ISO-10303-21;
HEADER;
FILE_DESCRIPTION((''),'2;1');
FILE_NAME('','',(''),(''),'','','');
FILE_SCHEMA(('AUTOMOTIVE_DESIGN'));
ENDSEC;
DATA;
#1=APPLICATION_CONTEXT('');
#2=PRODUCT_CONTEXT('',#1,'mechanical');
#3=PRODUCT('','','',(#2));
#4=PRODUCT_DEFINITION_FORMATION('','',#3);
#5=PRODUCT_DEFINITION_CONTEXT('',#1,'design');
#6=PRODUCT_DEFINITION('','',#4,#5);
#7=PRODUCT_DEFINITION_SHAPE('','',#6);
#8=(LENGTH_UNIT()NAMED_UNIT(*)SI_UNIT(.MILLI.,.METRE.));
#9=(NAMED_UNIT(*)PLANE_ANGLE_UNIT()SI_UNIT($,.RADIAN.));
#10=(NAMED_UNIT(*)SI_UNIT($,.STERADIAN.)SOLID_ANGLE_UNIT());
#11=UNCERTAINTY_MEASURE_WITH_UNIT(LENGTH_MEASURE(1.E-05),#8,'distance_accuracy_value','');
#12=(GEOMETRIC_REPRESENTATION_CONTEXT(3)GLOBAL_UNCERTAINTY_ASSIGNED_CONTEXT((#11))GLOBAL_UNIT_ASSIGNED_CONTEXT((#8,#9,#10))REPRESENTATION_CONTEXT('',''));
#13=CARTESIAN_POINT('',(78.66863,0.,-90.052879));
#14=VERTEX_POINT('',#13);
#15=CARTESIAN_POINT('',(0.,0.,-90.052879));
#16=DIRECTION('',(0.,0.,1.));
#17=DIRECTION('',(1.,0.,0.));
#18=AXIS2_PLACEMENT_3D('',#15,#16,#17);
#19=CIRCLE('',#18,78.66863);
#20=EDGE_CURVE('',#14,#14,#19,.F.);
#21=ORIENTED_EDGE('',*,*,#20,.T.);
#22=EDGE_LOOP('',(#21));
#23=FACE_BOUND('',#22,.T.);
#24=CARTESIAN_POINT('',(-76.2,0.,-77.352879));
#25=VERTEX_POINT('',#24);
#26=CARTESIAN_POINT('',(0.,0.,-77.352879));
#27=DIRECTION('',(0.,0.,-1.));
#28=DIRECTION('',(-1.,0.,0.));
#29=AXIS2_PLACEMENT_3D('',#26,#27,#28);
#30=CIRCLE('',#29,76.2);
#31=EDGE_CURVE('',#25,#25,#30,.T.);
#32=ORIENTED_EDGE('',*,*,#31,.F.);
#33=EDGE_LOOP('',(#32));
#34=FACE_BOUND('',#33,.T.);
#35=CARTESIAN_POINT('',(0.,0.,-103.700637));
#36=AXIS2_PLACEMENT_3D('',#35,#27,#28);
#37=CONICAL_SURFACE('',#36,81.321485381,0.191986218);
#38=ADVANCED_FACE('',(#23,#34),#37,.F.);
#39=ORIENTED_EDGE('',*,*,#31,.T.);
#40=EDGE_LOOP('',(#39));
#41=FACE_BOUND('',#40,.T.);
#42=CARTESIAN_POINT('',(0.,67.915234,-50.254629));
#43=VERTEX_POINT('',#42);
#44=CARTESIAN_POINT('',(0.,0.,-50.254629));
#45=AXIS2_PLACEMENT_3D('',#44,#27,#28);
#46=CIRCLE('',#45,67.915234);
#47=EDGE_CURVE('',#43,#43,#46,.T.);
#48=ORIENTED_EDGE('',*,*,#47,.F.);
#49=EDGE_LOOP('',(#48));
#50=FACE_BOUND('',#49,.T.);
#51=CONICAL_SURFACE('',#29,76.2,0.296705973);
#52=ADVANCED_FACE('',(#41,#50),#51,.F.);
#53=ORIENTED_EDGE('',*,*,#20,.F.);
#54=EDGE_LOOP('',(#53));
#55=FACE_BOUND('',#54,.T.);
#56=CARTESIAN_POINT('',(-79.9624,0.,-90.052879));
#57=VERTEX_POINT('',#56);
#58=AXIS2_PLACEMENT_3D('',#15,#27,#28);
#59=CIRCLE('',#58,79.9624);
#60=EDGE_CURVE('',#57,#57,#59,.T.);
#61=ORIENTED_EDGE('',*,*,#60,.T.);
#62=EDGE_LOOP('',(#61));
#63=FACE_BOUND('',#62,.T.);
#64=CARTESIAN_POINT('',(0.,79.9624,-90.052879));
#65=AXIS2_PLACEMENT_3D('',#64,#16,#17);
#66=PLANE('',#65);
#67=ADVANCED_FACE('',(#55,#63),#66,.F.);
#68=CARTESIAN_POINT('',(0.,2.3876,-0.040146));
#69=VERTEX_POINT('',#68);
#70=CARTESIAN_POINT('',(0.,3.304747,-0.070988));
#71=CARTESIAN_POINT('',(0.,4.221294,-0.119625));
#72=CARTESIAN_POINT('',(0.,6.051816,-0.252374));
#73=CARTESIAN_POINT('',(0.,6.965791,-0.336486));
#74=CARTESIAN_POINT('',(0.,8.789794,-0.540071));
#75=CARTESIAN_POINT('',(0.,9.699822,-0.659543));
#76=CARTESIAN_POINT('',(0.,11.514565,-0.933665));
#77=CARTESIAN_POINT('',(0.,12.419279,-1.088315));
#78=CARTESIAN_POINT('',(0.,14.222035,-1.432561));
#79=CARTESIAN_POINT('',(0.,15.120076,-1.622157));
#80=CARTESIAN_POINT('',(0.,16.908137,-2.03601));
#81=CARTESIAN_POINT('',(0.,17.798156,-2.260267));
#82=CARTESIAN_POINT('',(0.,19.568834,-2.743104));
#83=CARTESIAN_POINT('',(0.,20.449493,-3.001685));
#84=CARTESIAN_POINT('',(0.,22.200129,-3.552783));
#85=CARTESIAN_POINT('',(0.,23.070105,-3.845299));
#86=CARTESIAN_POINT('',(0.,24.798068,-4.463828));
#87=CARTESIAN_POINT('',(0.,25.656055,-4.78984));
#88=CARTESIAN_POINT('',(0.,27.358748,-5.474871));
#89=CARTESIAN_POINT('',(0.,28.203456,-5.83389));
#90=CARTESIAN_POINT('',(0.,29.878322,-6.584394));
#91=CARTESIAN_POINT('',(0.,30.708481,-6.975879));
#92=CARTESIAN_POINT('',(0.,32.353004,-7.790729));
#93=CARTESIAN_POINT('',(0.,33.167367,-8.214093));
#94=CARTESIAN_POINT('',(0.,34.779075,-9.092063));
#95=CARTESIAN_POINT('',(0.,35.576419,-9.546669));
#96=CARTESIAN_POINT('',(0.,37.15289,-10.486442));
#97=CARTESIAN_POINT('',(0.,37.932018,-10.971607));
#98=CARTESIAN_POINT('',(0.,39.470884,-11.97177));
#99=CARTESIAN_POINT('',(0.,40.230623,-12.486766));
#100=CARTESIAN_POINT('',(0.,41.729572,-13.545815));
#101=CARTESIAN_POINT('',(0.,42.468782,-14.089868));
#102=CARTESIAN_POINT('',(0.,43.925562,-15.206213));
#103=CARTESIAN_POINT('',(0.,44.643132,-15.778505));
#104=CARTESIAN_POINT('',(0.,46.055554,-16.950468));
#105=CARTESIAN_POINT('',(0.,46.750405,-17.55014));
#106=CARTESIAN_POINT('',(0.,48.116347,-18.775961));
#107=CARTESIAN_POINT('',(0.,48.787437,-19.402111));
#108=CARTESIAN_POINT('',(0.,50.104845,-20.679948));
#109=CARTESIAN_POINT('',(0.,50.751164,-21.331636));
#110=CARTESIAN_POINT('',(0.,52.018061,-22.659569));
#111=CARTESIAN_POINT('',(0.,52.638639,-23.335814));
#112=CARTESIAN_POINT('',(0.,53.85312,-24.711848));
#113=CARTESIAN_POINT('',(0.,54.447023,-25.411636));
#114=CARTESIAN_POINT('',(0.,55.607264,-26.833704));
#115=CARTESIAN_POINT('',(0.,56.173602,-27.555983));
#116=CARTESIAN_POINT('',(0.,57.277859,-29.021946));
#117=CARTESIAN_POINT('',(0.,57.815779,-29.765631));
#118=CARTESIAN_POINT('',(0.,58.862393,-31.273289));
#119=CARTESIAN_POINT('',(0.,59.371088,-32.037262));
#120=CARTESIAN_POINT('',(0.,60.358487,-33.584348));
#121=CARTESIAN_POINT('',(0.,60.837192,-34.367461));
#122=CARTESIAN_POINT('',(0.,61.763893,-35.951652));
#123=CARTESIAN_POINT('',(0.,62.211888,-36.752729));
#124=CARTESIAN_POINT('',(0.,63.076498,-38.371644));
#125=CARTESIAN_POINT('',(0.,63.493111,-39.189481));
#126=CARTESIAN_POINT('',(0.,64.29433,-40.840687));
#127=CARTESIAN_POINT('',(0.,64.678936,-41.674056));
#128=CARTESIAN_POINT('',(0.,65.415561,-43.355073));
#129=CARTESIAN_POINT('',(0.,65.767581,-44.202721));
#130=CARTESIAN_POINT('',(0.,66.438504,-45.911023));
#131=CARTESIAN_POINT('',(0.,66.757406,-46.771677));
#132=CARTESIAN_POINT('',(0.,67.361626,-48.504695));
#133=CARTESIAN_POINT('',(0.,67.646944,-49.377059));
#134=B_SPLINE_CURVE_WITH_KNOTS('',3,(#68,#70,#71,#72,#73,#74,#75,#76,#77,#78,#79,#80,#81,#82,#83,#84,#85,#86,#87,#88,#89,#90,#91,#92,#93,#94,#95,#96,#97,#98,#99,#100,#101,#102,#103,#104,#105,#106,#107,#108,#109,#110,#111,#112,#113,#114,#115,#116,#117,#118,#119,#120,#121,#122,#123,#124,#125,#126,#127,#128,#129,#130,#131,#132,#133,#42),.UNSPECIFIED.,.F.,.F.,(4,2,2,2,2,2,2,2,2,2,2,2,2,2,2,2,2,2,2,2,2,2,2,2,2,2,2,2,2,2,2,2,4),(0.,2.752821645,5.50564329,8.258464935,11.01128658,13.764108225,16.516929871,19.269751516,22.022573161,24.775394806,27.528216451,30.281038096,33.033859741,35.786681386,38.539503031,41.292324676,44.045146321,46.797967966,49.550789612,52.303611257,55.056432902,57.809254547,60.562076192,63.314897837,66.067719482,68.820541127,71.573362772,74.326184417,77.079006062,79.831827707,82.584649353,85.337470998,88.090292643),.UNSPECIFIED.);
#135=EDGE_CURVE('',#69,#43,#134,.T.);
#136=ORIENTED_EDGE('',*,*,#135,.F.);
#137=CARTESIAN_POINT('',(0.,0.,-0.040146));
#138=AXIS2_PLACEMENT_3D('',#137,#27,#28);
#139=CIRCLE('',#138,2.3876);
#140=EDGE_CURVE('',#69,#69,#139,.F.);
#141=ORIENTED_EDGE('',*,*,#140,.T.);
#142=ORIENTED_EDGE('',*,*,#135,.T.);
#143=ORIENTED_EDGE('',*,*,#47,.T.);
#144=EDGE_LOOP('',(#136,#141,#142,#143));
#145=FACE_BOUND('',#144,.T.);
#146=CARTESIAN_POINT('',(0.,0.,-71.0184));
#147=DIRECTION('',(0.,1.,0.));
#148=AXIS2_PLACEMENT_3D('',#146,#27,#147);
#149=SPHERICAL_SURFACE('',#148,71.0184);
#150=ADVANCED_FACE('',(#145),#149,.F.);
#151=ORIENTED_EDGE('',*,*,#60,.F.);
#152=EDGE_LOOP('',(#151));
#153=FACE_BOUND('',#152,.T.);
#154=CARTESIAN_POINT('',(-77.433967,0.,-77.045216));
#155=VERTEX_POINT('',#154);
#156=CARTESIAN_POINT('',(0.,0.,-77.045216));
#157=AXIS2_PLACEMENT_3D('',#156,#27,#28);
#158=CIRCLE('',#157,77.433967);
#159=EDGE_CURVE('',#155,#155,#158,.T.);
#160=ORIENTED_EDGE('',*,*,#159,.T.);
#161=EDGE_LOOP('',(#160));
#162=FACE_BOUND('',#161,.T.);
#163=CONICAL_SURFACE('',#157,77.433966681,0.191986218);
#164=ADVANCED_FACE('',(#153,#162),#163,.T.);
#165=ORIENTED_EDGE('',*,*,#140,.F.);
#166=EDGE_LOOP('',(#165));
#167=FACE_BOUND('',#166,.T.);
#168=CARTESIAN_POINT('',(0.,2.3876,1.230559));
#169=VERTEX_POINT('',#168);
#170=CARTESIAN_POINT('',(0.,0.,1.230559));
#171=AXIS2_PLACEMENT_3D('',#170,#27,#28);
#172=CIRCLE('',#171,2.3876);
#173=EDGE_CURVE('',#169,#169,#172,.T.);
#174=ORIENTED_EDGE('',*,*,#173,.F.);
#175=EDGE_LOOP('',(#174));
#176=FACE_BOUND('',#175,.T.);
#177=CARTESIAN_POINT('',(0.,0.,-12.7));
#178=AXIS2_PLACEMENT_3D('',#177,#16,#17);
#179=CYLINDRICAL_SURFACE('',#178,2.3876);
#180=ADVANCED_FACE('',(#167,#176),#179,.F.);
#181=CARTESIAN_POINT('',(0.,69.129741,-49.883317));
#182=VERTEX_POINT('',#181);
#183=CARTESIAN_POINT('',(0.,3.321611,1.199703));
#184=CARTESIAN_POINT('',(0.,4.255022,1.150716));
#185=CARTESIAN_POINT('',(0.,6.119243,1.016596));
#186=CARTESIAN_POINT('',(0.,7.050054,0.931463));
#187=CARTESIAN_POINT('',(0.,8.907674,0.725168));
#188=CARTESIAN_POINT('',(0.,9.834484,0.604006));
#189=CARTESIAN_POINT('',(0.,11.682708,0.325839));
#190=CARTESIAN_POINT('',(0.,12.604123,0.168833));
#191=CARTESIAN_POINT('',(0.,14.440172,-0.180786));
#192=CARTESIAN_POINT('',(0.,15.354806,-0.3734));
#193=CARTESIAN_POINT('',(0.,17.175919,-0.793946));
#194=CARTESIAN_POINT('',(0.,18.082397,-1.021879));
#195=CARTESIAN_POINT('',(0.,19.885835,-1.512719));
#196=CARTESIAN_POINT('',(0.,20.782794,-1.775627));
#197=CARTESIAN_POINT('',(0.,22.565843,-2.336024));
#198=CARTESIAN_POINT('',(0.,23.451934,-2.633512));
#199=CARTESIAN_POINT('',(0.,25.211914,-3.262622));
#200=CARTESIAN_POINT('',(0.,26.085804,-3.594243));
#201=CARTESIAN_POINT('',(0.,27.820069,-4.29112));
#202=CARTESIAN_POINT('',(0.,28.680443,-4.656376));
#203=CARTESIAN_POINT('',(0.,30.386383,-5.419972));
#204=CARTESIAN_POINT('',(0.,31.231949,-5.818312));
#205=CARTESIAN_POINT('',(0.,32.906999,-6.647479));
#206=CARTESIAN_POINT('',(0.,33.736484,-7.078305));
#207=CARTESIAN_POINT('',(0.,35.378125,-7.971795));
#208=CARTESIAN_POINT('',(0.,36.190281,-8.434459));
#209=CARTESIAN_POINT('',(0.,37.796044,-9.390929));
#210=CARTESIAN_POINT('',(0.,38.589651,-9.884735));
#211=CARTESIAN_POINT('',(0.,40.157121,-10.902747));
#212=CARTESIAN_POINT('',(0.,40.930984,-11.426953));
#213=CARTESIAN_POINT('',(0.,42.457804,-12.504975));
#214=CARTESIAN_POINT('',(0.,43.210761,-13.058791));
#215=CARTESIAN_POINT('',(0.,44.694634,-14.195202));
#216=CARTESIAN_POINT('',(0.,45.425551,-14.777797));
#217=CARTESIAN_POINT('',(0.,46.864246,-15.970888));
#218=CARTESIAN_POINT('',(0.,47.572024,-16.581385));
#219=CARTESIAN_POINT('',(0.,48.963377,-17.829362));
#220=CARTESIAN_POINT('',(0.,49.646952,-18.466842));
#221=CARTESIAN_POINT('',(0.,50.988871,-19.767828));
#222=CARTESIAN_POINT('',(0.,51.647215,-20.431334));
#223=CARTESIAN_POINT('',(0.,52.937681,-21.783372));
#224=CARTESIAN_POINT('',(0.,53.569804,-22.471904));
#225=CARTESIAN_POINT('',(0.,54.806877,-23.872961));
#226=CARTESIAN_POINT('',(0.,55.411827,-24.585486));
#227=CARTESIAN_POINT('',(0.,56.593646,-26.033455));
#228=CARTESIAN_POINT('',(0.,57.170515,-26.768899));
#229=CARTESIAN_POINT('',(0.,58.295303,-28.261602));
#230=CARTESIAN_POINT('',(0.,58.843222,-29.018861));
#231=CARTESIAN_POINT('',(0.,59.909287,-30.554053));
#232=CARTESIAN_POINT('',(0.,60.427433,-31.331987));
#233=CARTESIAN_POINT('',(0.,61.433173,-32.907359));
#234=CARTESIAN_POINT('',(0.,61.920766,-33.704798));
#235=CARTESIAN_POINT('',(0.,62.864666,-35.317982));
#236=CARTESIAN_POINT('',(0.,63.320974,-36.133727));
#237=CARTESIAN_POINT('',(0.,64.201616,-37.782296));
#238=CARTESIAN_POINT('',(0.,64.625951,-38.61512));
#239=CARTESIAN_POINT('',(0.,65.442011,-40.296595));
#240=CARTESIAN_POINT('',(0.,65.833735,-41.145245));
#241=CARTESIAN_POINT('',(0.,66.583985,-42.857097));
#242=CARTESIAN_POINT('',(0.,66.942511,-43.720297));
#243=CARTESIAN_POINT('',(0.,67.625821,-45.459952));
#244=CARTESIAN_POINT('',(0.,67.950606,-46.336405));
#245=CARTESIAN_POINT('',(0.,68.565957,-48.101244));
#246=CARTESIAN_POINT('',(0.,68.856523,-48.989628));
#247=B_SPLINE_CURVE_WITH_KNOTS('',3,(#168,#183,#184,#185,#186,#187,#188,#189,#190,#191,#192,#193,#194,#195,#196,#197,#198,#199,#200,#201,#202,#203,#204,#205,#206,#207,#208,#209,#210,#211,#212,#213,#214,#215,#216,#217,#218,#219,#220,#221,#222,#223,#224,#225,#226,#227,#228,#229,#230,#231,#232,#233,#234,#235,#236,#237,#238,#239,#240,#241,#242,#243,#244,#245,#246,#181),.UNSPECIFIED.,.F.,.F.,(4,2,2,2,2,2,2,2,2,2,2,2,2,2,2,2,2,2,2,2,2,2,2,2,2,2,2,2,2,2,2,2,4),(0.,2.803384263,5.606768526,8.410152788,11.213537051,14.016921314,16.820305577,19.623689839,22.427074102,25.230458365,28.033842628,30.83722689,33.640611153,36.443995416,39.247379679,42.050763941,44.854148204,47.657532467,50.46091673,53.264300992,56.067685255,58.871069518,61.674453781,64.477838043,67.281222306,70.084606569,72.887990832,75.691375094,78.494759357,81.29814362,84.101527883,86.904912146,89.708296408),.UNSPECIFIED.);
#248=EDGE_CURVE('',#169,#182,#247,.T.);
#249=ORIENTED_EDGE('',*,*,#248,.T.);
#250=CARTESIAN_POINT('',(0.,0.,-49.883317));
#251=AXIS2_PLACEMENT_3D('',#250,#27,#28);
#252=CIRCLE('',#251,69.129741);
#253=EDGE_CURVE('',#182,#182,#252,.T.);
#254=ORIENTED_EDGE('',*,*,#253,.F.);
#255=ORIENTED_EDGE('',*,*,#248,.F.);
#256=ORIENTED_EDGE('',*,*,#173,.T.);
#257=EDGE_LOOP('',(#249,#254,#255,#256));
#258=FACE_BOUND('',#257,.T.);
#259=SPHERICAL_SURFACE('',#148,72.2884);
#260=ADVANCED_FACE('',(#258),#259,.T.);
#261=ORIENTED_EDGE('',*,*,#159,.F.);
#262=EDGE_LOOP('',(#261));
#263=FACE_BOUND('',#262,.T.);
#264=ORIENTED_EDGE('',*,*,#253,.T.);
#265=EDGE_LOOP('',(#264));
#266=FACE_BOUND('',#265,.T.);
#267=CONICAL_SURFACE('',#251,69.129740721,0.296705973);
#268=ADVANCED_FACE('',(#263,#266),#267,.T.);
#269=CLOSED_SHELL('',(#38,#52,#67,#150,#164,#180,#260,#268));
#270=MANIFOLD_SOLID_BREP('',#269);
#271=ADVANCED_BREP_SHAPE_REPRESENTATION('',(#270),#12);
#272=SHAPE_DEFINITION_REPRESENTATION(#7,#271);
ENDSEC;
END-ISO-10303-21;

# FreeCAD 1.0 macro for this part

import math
import FreeCAD as App
import Part
import Sketcher
from FreeCAD import Vector
Q = App.Units.Quantity

doc = App.newDocument("Part")
body = doc.addObject("PartDesign::Body", "Body")

sketch1 = body.newObject("Sketcher::SketchObject", "Sketch")
sketch1.AttachmentSupport = (doc.getObject("YZ_Plane"), [""])
sketch1.MapMode = "FlatFace"
sketch1.addGeometry([
    Part.ArcOfCircle(Part.Circle(Vector(0, -71, 0), Vector(0, 0, 1), 71), math.radians(17), math.radians(90)),
    Part.LineSegment(Vector(67.9, -50.3, 0), Vector(76.2, -77.4, 0)),
    Part.LineSegment(Vector(76.2, -77.4, 0), Vector(78.7, -90.1, 0)),
    Part.LineSegment(Vector(78.7, -90.1, 0), Vector(81.3, -103.7, 0)),
    Part.ArcOfCircle(Part.Circle(Vector(87.6, -102.5, 0), Vector(0, 0, 1), 6.4), math.radians(-169), math.radians(-90)),
    Part.LineSegment(Vector(87.6, -108.8, 0), Vector(114.3, -108.8, 0)),
    Part.LineSegment(Vector(114.3, -108.8, 0), Vector(114.3, -106.3, 0)),
    Part.LineSegment(Vector(114.3, -106.3, 0), Vector(87.6, -106.3, 0)),
    Part.ArcOfCircle(Part.Circle(Vector(87.6, -102.5, 0), Vector(0, 0, 1), 3.8), math.radians(-169), math.radians(-90)),
    Part.LineSegment(Vector(83.8, -103.2, 0), Vector(81.2, -89.6, 0)),
    Part.LineSegment(Vector(81.2, -89.6, 0), Vector(78.7, -76.7, 0)),
    Part.LineSegment(Vector(78.7, -76.7, 0), Vector(70.3, -49.5, 0)),
    Part.ArcOfCircle(Part.Circle(Vector(0, -71, 0), Vector(0, 0, 1), 73.6), math.radians(17), math.radians(90)),
    Part.LineSegment(Vector(0, 2.5, 0), Vector(0, 0, 0)),
], False)
sketch1.addConstraint([
    Sketcher.Constraint("Tangent", 0, 1, 1, 1),
    Sketcher.Constraint("Coincident", 1, 2, 2, 1),
    Sketcher.Constraint("Coincident", 2, 2, 3, 1),
    Sketcher.Constraint("Tangent", 3, 2, 4, 1),
    Sketcher.Constraint("Tangent", 4, 2, 5, 1),
    Sketcher.Constraint("Coincident", 5, 2, 6, 1),
    Sketcher.Constraint("Coincident", 6, 2, 7, 1),
    Sketcher.Constraint("Tangent", 7, 2, 8, 2),
    Sketcher.Constraint("Tangent", 8, 1, 9, 1),
    Sketcher.Constraint("Coincident", 9, 2, 10, 1),
    Sketcher.Constraint("Coincident", 10, 2, 11, 1),
    Sketcher.Constraint("Tangent", 11, 2, 12, 1),
    Sketcher.Constraint("Coincident", 12, 2, 13, 1),
    Sketcher.Constraint("Coincident", 13, 2, 0, 2),
    Sketcher.Constraint("Horizontal", 5),
    Sketcher.Constraint("Vertical", 6),
    Sketcher.Constraint("Horizontal", 7),
    Sketcher.Constraint("Vertical", 13),
    Sketcher.Constraint("Coincident", 13, 2, -1, 1),
    Sketcher.Constraint("Coincident", 8, 3, 4, 3),
    Sketcher.Constraint("Coincident", 12, 3, 0, 3),
    Sketcher.Constraint("PointOnObject", 0, 3, -2),
    Sketcher.Constraint("Parallel", 2, 3),
    Sketcher.Constraint("Parallel", 3, 9),
    Sketcher.Constraint("Parallel", 9, 10),
    Sketcher.Constraint("Parallel", 1, 11),
    Sketcher.Constraint("Equal", 6, 13),
    Sketcher.Constraint("Equal", 3, 9),
    Sketcher.Constraint("Radius", 4, Q("0.25 in")),
    Sketcher.Constraint("Radius", 8, Q("0.15 in")),
    Sketcher.Constraint("DistanceX", -1, 1, 1, 2, Q("3 in")),
    Sketcher.Constraint("Angle", 1, Q("-73 deg")),
    Sketcher.Constraint("Angle", 2, Q("-79 deg")),
    Sketcher.Constraint("Radius", 0, Q("2.796 in")),
    Sketcher.Constraint("DistanceX", -1, 1, 5, 2, Q("4.5 in")),
    Sketcher.Constraint("DistanceY", 2, 2, 1, 2, Q("0.5 in")),
    Sketcher.Constraint("DistanceY", 4, 3, -1, 1, Q("4.035 in")),
])
revolution = body.newObject("PartDesign::Revolution", "Revolution")
revolution.Profile = sketch1
revolution.ReferenceAxis = (sketch1, ["V_Axis"])
revolution.Angle = 360

sketch2 = body.newObject("Sketcher::SketchObject", "Sketch001")
sketch2.AttachmentSupport = (doc.getObject("YZ_Plane"), [""])
sketch2.MapMode = "FlatFace"
sketch2.addGeometry([
    Part.LineSegment(Vector(0, 24, 0), Vector(0, 1, 0)),
    Part.ArcOfCircle(Part.Circle(Vector(0, -71, 0), Vector(0, 0, 1), 72), math.radians(17), math.radians(90)),
    Part.LineSegment(Vector(69, -50, 0), Vector(77, -77, 0)),
    Part.LineSegment(Vector(77, -77, 0), Vector(80, -90, 0)),
    Part.LineSegment(Vector(80, -90, 0), Vector(70, -90, 0)),
    Part.LineSegment(Vector(70, -90, 0), Vector(70, -117, 0)),
    Part.LineSegment(Vector(70, -117, 0), Vector(127, -117, 0)),
    Part.LineSegment(Vector(127, -117, 0), Vector(127, 24, 0)),
    Part.LineSegment(Vector(127, 24, 0), Vector(0, 24, 0)),
], False)
sketch2.addConstraint([
    Sketcher.Constraint("Coincident", 0, 2, 1, 2),
    Sketcher.Constraint("Tangent", 1, 1, 2, 1),
    Sketcher.Constraint("Coincident", 2, 2, 3, 1),
    Sketcher.Constraint("Coincident", 3, 2, 4, 1),
    Sketcher.Constraint("Coincident", 4, 2, 5, 1),
    Sketcher.Constraint("Coincident", 5, 2, 6, 1),
    Sketcher.Constraint("Coincident", 6, 2, 7, 1),
    Sketcher.Constraint("Coincident", 7, 2, 8, 1),
    Sketcher.Constraint("Coincident", 8, 2, 0, 1),
    Sketcher.Constraint("Vertical", 0),
    Sketcher.Constraint("Horizontal", 4),
    Sketcher.Constraint("Vertical", 5),
    Sketcher.Constraint("Horizontal", 6),
    Sketcher.Constraint("Vertical", 7),
    Sketcher.Constraint("Horizontal", 8),
    Sketcher.Constraint("PointOnObject", 1, 3, -2),
    Sketcher.Constraint("PointOnObject", 0, 2, -2),
    Sketcher.Constraint("Angle", 2, Q("-73 deg")),
    Sketcher.Constraint("Angle", 3, Q("-79 deg")),
    Sketcher.Constraint("Radius", 1, Q("2.846 in")),
    Sketcher.Constraint("DistanceY", -1, 1, 0, 2, Q("0.05 in")),
    Sketcher.Constraint("DistanceX", 6, 1, 6, 2, Q("57.216911 mm")),
    Sketcher.Constraint("DistanceY", 5, 2, 5, 1, Q("26.847378 mm")),
    Sketcher.Constraint("DistanceX", -1, 1, 3, 2, Q("79.9624 mm")),
    Sketcher.Constraint("DistanceY", 2, 2, 1, 1, Q("27.161899 mm")),
    Sketcher.Constraint("DistanceX", 4, 2, 4, 1, Q("9.961466 mm")),
    Sketcher.Constraint("DistanceY", 0, 2, 0, 1, Q("22.616406 mm")),
])
groove = body.newObject("PartDesign::Groove", "Groove")
groove.Profile = sketch2
groove.ReferenceAxis = (sketch2, ["V_Axis"])
groove.Angle = 360

sketch3 = body.newObject("Sketcher::SketchObject", "Sketch002")
sketch3.AttachmentSupport = (doc.getObject("XY_Plane"), [""])
sketch3.MapMode = "FlatFace"
sketch3.addGeometry(Part.Circle(Vector(0, 0, 0), Vector(0, 0, 1), 2.4), False)
sketch3.addConstraint([
    Sketcher.Constraint("Coincident", 0, 3, -1, 1),
    Sketcher.Constraint("Diameter", 0, Q("0.188 in")),
])
pocket1 = body.newObject("PartDesign::Pocket", "Pocket")
pocket1.Profile = sketch3
pocket1.Length = Q("1 in")
pocket1.Midplane = True

doc.recompute()
